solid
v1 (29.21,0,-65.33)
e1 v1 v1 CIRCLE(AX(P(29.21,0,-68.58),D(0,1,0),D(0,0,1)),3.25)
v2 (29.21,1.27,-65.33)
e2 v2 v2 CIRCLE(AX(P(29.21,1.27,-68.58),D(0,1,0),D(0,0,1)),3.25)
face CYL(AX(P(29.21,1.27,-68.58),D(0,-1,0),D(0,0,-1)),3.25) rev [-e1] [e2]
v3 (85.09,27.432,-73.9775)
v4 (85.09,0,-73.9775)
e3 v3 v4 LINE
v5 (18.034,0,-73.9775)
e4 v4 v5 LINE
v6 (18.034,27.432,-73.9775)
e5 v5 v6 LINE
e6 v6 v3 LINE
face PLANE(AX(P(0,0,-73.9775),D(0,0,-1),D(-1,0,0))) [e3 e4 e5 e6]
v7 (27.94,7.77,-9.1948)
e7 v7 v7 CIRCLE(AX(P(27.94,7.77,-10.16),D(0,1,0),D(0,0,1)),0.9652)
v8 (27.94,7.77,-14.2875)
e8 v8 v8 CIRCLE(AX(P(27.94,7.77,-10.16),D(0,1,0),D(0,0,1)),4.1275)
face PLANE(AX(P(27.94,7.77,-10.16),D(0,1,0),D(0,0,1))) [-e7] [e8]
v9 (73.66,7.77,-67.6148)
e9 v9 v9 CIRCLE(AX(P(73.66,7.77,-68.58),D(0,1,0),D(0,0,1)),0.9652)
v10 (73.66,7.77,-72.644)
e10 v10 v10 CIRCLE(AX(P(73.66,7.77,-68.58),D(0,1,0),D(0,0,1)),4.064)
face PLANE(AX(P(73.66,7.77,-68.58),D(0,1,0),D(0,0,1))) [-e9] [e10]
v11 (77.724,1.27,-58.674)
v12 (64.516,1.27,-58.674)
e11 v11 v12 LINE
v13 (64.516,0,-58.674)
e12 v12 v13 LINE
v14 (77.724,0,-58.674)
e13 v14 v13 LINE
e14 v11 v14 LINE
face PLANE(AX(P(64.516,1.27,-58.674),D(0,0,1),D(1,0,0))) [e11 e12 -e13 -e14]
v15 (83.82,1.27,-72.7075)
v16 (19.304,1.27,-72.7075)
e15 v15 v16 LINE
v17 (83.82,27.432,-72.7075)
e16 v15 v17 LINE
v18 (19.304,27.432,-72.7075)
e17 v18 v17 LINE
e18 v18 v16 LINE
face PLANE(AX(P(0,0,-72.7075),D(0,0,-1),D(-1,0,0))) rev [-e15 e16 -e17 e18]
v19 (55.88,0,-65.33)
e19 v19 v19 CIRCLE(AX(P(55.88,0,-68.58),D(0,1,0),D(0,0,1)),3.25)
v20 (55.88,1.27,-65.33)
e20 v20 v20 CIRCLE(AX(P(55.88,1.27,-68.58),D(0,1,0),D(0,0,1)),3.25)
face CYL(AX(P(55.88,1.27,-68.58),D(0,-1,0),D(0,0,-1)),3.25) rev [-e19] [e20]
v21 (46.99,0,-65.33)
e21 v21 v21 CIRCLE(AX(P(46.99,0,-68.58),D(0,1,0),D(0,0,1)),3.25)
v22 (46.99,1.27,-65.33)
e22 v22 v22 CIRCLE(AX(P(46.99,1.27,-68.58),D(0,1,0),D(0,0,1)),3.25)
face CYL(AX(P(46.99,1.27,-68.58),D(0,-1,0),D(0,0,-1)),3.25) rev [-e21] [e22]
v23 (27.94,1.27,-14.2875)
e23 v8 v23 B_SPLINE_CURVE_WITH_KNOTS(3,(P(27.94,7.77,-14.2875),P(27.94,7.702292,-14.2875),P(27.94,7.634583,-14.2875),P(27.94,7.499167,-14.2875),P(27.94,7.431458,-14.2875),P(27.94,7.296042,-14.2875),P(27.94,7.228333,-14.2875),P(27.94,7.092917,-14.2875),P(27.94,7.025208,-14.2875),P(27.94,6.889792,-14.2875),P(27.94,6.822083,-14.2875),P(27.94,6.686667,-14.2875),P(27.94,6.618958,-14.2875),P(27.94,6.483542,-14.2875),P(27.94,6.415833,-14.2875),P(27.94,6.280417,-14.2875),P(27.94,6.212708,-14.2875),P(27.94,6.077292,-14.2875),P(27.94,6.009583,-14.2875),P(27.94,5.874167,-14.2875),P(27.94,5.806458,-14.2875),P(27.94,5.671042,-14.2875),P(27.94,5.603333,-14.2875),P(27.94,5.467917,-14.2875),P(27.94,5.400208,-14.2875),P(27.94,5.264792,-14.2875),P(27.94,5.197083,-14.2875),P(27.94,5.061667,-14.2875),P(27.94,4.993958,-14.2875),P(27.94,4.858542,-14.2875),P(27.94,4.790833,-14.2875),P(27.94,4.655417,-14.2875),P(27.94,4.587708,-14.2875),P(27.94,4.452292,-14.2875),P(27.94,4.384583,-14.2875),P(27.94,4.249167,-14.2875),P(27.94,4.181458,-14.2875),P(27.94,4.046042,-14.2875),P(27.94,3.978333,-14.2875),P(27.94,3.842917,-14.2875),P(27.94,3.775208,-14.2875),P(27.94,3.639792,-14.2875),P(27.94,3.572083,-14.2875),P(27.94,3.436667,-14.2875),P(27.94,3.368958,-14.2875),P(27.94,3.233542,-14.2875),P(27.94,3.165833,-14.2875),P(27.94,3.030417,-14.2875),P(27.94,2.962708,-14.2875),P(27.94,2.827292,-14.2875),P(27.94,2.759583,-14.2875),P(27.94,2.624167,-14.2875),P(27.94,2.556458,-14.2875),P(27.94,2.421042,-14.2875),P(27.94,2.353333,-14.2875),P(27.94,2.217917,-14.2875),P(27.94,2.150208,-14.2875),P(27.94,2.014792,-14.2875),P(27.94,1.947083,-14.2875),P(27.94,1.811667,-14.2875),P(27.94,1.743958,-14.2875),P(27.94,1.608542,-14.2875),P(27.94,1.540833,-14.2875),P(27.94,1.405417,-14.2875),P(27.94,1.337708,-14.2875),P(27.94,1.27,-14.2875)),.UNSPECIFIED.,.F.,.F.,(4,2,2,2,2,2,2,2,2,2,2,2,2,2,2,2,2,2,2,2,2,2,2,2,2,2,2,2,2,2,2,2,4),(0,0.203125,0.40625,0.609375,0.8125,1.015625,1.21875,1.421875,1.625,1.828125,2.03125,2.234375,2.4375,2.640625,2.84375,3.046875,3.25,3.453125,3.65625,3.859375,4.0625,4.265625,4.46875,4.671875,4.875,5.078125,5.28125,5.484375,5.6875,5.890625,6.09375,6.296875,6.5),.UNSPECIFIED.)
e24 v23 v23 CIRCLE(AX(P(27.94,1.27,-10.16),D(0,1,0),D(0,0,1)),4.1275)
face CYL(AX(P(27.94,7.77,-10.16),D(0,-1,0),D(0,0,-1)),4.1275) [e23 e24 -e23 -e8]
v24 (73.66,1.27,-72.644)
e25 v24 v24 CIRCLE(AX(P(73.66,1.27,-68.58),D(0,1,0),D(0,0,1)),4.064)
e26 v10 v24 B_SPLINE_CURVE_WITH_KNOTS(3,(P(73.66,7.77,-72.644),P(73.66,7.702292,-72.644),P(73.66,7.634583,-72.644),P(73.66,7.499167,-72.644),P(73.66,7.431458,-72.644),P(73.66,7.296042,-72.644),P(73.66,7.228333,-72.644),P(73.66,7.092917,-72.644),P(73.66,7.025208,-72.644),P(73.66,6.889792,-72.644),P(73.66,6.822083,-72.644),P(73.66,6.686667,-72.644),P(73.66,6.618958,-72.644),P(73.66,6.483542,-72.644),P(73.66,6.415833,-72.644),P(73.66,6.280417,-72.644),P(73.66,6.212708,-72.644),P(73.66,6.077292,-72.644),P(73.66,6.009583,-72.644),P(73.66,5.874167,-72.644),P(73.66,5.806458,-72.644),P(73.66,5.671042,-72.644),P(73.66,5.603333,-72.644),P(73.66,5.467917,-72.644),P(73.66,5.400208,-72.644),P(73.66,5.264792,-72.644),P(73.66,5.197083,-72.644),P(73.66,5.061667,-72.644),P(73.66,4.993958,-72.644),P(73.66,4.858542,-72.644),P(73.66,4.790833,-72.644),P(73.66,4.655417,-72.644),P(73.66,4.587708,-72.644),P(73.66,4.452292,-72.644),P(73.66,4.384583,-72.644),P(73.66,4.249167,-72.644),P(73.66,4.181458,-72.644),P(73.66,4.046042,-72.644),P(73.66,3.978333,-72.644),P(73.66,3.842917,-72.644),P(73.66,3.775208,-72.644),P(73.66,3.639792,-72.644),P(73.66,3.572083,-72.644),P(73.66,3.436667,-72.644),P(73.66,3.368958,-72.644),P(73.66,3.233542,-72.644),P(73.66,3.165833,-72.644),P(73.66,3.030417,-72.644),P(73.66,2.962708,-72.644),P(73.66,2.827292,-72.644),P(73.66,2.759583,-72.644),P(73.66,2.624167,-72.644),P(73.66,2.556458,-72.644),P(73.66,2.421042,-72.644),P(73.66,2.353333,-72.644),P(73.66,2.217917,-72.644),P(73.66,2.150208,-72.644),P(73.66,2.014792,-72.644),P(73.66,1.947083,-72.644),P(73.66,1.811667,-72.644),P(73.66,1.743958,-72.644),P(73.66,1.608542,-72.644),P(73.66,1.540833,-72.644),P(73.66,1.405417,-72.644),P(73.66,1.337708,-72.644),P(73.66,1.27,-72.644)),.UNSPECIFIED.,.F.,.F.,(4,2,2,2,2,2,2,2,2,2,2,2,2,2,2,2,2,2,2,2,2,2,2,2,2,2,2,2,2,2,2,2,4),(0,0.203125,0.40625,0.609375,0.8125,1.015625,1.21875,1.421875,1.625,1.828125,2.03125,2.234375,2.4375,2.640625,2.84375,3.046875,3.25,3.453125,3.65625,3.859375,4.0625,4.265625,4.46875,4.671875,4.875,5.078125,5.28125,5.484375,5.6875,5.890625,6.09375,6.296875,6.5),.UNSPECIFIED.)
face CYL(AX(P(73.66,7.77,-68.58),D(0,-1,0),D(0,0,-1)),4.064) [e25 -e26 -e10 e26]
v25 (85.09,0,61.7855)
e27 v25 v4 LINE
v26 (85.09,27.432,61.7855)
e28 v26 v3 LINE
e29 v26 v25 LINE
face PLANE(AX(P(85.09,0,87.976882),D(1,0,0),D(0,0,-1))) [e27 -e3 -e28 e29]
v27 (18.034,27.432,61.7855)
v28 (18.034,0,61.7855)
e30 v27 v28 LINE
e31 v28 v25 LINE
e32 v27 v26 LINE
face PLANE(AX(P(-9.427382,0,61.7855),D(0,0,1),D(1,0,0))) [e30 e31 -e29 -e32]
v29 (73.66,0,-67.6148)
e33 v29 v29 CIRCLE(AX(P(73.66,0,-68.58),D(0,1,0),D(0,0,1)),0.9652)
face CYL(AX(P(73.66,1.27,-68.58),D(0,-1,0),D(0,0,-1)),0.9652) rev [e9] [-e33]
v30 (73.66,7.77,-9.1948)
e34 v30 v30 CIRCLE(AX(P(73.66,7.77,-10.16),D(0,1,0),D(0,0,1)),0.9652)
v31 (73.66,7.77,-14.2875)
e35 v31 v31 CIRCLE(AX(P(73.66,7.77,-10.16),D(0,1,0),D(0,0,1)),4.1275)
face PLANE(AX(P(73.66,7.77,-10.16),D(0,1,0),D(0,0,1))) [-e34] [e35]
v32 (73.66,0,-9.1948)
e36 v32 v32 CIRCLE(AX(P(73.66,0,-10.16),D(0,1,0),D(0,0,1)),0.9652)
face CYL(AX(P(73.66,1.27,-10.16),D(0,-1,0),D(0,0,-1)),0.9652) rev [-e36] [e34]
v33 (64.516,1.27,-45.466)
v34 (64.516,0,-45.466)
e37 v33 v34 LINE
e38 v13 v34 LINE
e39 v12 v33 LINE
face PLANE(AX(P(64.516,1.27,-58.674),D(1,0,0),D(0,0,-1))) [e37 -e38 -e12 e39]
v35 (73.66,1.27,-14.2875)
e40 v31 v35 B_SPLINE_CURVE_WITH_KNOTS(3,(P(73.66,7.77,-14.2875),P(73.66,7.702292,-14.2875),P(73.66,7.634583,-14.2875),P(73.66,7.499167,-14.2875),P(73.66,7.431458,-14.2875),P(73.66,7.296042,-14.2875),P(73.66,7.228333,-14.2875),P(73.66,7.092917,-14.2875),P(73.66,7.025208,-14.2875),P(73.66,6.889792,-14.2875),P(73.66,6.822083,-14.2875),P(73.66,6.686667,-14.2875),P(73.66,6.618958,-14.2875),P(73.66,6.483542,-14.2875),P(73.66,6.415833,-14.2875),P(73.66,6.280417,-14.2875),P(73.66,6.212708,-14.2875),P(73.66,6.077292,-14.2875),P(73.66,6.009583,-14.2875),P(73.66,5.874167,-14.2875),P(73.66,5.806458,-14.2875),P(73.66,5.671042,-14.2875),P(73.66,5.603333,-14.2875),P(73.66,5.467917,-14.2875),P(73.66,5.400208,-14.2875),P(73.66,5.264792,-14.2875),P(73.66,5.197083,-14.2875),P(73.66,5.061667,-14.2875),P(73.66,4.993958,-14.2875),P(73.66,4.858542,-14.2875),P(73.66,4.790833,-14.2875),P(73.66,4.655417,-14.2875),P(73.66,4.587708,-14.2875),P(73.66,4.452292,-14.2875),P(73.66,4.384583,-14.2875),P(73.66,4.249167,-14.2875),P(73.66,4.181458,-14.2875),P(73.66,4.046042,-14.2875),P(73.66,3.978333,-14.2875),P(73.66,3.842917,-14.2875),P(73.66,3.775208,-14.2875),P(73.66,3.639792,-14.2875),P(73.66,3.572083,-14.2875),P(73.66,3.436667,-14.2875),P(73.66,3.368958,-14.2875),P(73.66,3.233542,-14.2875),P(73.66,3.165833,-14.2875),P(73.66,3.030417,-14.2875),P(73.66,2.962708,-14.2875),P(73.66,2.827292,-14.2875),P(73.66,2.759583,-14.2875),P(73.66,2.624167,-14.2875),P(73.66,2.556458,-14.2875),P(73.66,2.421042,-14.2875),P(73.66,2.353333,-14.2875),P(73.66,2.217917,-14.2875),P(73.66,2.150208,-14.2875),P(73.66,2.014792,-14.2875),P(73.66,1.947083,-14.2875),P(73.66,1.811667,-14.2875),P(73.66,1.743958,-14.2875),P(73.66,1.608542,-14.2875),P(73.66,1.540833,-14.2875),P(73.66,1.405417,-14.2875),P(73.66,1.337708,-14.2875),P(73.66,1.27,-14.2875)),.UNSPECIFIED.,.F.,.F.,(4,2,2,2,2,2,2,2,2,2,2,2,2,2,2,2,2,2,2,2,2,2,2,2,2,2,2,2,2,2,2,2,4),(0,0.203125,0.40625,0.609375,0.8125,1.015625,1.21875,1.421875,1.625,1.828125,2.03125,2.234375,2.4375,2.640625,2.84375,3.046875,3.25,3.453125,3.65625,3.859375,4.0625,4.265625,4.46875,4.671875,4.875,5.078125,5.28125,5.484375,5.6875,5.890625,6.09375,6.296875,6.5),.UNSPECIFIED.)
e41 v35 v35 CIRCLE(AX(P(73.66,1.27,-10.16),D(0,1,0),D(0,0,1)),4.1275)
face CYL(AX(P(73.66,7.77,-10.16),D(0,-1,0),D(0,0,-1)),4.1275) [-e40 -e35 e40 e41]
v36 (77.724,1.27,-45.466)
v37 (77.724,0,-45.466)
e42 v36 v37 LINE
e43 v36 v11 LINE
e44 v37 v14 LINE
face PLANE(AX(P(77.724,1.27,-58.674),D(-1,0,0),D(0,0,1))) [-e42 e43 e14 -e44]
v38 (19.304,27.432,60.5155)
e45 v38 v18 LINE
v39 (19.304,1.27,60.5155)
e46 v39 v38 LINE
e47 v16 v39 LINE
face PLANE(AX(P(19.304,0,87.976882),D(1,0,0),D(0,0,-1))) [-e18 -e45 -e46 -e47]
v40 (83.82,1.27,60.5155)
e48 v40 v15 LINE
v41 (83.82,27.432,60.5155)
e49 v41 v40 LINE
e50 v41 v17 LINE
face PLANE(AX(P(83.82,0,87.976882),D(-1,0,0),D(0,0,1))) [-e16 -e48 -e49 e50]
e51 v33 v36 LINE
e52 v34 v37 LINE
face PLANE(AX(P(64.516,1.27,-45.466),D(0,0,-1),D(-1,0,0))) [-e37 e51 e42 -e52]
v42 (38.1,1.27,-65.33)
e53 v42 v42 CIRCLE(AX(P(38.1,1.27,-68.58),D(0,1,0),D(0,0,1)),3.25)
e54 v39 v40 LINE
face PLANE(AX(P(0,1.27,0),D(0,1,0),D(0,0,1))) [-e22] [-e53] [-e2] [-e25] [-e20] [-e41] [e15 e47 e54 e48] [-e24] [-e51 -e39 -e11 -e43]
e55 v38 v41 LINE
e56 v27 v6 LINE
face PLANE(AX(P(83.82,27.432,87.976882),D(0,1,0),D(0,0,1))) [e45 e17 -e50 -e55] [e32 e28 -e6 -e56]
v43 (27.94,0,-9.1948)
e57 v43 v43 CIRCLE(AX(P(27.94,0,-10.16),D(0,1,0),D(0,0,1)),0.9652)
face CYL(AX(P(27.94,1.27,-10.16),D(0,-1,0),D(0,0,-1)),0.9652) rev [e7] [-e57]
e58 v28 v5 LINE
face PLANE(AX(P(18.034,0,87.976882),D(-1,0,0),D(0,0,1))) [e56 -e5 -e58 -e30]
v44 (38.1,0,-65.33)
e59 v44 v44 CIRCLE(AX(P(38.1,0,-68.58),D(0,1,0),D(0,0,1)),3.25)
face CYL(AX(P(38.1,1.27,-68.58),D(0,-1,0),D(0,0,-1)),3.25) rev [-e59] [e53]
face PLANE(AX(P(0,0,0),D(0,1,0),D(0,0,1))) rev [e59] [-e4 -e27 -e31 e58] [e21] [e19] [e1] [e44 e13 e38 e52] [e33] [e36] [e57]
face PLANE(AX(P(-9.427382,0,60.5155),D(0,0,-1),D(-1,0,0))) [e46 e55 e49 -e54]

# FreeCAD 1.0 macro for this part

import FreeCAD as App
import Part
import Sketcher
from FreeCAD import Vector
Q = App.Units.Quantity


def add_polygon(sketch, points):
    """Adds a closed chain of lines whose ends are joined by coincident constraints."""
    first, n = sketch.GeometryCount, len(points)
    for a, b in zip(points, points[1:] + points[:1]):
        sketch.addGeometry(Part.LineSegment(App.Vector(*a, 0), App.Vector(*b, 0)), False)
    for i in range(n):
        sketch.addConstraint(Sketcher.Constraint("Coincident", first + i, 2, first + (i + 1) % n, 1))

doc = App.newDocument("Part")
body = doc.addObject("PartDesign::Body", "Body")

sketch1 = body.newObject("Sketcher::SketchObject", "Sketch")
sketch1.AttachmentSupport = (doc.getObject("XZ_Plane"), [""])
sketch1.MapMode = "FlatFace"
add_polygon(sketch1, [(19.3, -72.7), (19.3, 60.5), (83.8, 60.5), (83.8, -72.7)])
sketch1.addGeometry(Part.Circle(Vector(27.9, -10.2, 0), Vector(0, 0, 1), 1), False)
sketch1.addGeometry(Part.Circle(Vector(73.7, -10.2, 0), Vector(0, 0, 1), 1), False)
sketch1.addGeometry(Part.Circle(Vector(29.2, -68.6, 0), Vector(0, 0, 1), 3.2), False)
sketch1.addGeometry(Part.Circle(Vector(38.1, -68.6, 0), Vector(0, 0, 1), 3.2), False)
sketch1.addGeometry(Part.Circle(Vector(47, -68.6, 0), Vector(0, 0, 1), 3.2), False)
add_polygon(sketch1, [(77.7, -45.5), (64.5, -45.5), (64.5, -58.7), (77.7, -58.7)])
sketch1.addGeometry(Part.Circle(Vector(55.9, -68.6, 0), Vector(0, 0, 1), 3.2), False)
sketch1.addGeometry(Part.Circle(Vector(73.7, -68.6, 0), Vector(0, 0, 1), 1), False)
sketch1.addConstraint([
    Sketcher.Constraint("Vertical", 0),
    Sketcher.Constraint("Horizontal", 1),
    Sketcher.Constraint("Vertical", 2),
    Sketcher.Constraint("Horizontal", 3),
    Sketcher.Constraint("Horizontal", 9),
    Sketcher.Constraint("Vertical", 10),
    Sketcher.Constraint("Horizontal", 11),
    Sketcher.Constraint("Vertical", 12),
    Sketcher.Constraint("Equal", 4, 5),
    Sketcher.Constraint("Equal", 6, 7),
    Sketcher.Constraint("Equal", 7, 8),
    Sketcher.Constraint("Equal", 8, 13),
    Sketcher.Constraint("Equal", 5, 14),
    Sketcher.Constraint("Horizontal", 4, 3, 5, 3),
    Sketcher.Constraint("Horizontal", 6, 3, 7, 3),
    Sketcher.Constraint("Horizontal", 7, 3, 8, 3),
    Sketcher.Constraint("Horizontal", 8, 3, 13, 3),
    Sketcher.Constraint("Horizontal", 13, 3, 14, 3),
    Sketcher.Constraint("Vertical", 5, 3, 14, 3),
    Sketcher.Constraint("Equal", 11, 10),
    Sketcher.Constraint("Diameter", 4, Q("0.076 in")),
    Sketcher.Constraint("DistanceX", 1, 1, 1, 2, Q("2.54 in")),
    Sketcher.Constraint("DistanceX", 9, 2, 9, 1, Q("0.52 in")),
    Sketcher.Constraint("DistanceX", -1, 1, 4, 3, Q("1.1 in")),
    Sketcher.Constraint("DistanceY", 4, 3, -1, 1, Q("0.4 in")),
    Sketcher.Constraint("DistanceX", -1, 1, 5, 3, Q("2.9 in")),
    Sketcher.Constraint("DistanceY", 6, 3, -1, 1, Q("2.7 in")),
    Sketcher.Constraint("DistanceX", -1, 1, 7, 3, Q("1.5 in")),
    Sketcher.Constraint("DistanceX", -1, 1, 13, 3, Q("2.2 in")),
    Sketcher.Constraint("DistanceX", -1, 1, 1, 2, Q("3.3 in")),
    Sketcher.Constraint("DistanceX", 6, 3, 8, 3, Q("0.7 in")),
    Sketcher.Constraint("Diameter", 6, 6.5),
    Sketcher.Constraint("DistanceY", 0, 1, 0, 2, Q("5.245 in")),
    Sketcher.Constraint("DistanceX", -1, 1, 6, 3, Q("1.15 in")),
    Sketcher.Constraint("DistanceX", -1, 1, 9, 2, Q("2.54 in")),
    Sketcher.Constraint("DistanceY", 9, 2, -1, 1, Q("1.79 in")),
    Sketcher.Constraint("DistanceY", -1, 1, 0, 2, Q("2.3825 in")),
])
pad1 = body.newObject("PartDesign::Pad", "Pad")
pad1.Profile = sketch1
pad1.Length = Q("0.05 in")
pad1.Reversed = True

sketch2 = body.newObject("Sketcher::SketchObject", "Sketch001")
sketch2.AttachmentSupport = (doc.getObject("XZ_Plane"), [""])
sketch2.MapMode = "FlatFace"
sketch2.AttachmentOffset = App.Placement(Vector(0, 0, -0.05 * 25.4), App.Rotation())
sketch2.addGeometry([
    Part.Circle(Vector(27.9, -10.2, 0), Vector(0, 0, 1), 4.1),
    Part.Circle(Vector(27.9, -10.2, 0), Vector(0, 0, 1), 1),
    Part.Circle(Vector(73.7, -10.2, 0), Vector(0, 0, 1), 4.1),
    Part.Circle(Vector(73.7, -10.2, 0), Vector(0, 0, 1), 1),
    Part.Circle(Vector(73.7, -68.6, 0), Vector(0, 0, 1), 4.1),
    Part.Circle(Vector(73.7, -68.6, 0), Vector(0, 0, 1), 1),
], False)
sketch2.addConstraint([
    Sketcher.Constraint("Coincident", 1, 3, 0, 3),
    Sketcher.Constraint("Coincident", 3, 3, 2, 3),
    Sketcher.Constraint("Coincident", 5, 3, 4, 3),
    Sketcher.Constraint("Equal", 0, 2),
    Sketcher.Constraint("Equal", 1, 3),
    Sketcher.Constraint("Equal", 3, 5),
    Sketcher.Constraint("Horizontal", 1, 3, 2, 3),
    Sketcher.Constraint("Vertical", 3, 3, 4, 3),
    Sketcher.Constraint("Diameter", 4, Q("0.32 in")),
    Sketcher.Constraint("Diameter", 0, Q("0.325 in")),
    Sketcher.Constraint("Diameter", 1, Q("0.076 in")),
    Sketcher.Constraint("DistanceX", -1, 1, 0, 3, Q("1.1 in")),
    Sketcher.Constraint("DistanceY", 0, 3, -1, 1, Q("0.4 in")),
    Sketcher.Constraint("DistanceX", -1, 1, 2, 3, Q("2.9 in")),
    Sketcher.Constraint("DistanceY", 4, 3, -1, 1, Q("2.7 in")),
])
pad2 = body.newObject("PartDesign::Pad", "Pad001")
pad2.Profile = sketch2
pad2.Length = 6.5
pad2.Reversed = True

sketch3 = body.newObject("Sketcher::SketchObject", "Sketch002")
sketch3.AttachmentSupport = (doc.getObject("XY_Plane"), [""])
sketch3.MapMode = "FlatFace"
sketch3.AttachmentOffset = App.Placement(Vector(0, 0, -2.8625 * 25.4), App.Rotation())
add_polygon(sketch3, [(85.1, 27.4), (85.1, 0), (83.8, 0), (83.8, 27.4)])
add_polygon(sketch3, [(19.3, 27.4), (19.3, 0), (18, 0), (18, 27.4)])
sketch3.addConstraint([
    Sketcher.Constraint("Vertical", 0),
    Sketcher.Constraint("Horizontal", 1),
    Sketcher.Constraint("Vertical", 2),
    Sketcher.Constraint("Horizontal", 3),
    Sketcher.Constraint("Vertical", 4),
    Sketcher.Constraint("Horizontal", 5),
    Sketcher.Constraint("Vertical", 6),
    Sketcher.Constraint("Horizontal", 7),
    Sketcher.Constraint("PointOnObject", 0, 2, -1),
    Sketcher.Constraint("PointOnObject", 4, 2, -1),
    Sketcher.Constraint("Horizontal", 3, 2, 6, 2),
    Sketcher.Constraint("Equal", 3, 5),
    Sketcher.Constraint("DistanceX", 1, 2, 1, 1, Q("0.05 in")),
    Sketcher.Constraint("DistanceY", 0, 2, 0, 1, Q("1.08 in")),
    Sketcher.Constraint("DistanceX", -1, 1, 1, 2, Q("3.3 in")),
    Sketcher.Constraint("DistanceX", -1, 1, 4, 2, Q("0.76 in")),
])
pad3 = body.newObject("PartDesign::Pad", "Pad002")
pad3.Profile = sketch3
pad3.Length = Q("5.245 in")

sketch4 = body.newObject("Sketcher::SketchObject", "Sketch003")
sketch4.AttachmentSupport = (doc.getObject("YZ_Plane"), [""])
sketch4.MapMode = "FlatFace"
sketch4.AttachmentOffset = App.Placement(Vector(0, 0, 3.35 * 25.4), App.Rotation())
add_polygon(sketch4, [(27.4, 61.8), (0, 61.8), (0, 60.5), (27.4, 60.5)])
sketch4.addConstraint([
    Sketcher.Constraint("Horizontal", 0),
    Sketcher.Constraint("Vertical", 1),
    Sketcher.Constraint("Horizontal", 2),
    Sketcher.Constraint("Vertical", 3),
    Sketcher.Constraint("PointOnObject", 0, 2, -2),
    Sketcher.Constraint("DistanceX", 0, 2, 0, 1, Q("1.08 in")),
    Sketcher.Constraint("DistanceY", 1, 2, 1, 1, Q("0.05 in")),
    Sketcher.Constraint("DistanceY", -1, 1, 0, 2, Q("2.4325 in")),
])
pad4 = body.newObject("PartDesign::Pad", "Pad003")
pad4.Profile = sketch4
pad4.Length = Q("2.64 in")
pad4.Reversed = True

sketch5 = body.newObject("Sketcher::SketchObject", "Sketch004")
sketch5.AttachmentSupport = (doc.getObject("XY_Plane"), [""])
sketch5.MapMode = "FlatFace"
sketch5.AttachmentOffset = App.Placement(Vector(0, 0, -2.8625 * 25.4), App.Rotation())
add_polygon(sketch5, [(85, 27), (85, 0), (18, 0), (18, 27)])
sketch5.addConstraint([
    Sketcher.Constraint("Vertical", 0),
    Sketcher.Constraint("Horizontal", 1),
    Sketcher.Constraint("Vertical", 2),
    Sketcher.Constraint("Horizontal", 3),
    Sketcher.Constraint("PointOnObject", 0, 2, -1),
    Sketcher.Constraint("DistanceX", 1, 2, 1, 1, Q("2.64 in")),
    Sketcher.Constraint("DistanceY", 0, 2, 0, 1, Q("1.08 in")),
    Sketcher.Constraint("DistanceX", -1, 1, 0, 2, Q("3.35 in")),
])
pad5 = body.newObject("PartDesign::Pad", "Pad004")
pad5.Profile = sketch5
pad5.Length = Q("0.05 in")
pad5.Reversed = True

doc.recompute()
